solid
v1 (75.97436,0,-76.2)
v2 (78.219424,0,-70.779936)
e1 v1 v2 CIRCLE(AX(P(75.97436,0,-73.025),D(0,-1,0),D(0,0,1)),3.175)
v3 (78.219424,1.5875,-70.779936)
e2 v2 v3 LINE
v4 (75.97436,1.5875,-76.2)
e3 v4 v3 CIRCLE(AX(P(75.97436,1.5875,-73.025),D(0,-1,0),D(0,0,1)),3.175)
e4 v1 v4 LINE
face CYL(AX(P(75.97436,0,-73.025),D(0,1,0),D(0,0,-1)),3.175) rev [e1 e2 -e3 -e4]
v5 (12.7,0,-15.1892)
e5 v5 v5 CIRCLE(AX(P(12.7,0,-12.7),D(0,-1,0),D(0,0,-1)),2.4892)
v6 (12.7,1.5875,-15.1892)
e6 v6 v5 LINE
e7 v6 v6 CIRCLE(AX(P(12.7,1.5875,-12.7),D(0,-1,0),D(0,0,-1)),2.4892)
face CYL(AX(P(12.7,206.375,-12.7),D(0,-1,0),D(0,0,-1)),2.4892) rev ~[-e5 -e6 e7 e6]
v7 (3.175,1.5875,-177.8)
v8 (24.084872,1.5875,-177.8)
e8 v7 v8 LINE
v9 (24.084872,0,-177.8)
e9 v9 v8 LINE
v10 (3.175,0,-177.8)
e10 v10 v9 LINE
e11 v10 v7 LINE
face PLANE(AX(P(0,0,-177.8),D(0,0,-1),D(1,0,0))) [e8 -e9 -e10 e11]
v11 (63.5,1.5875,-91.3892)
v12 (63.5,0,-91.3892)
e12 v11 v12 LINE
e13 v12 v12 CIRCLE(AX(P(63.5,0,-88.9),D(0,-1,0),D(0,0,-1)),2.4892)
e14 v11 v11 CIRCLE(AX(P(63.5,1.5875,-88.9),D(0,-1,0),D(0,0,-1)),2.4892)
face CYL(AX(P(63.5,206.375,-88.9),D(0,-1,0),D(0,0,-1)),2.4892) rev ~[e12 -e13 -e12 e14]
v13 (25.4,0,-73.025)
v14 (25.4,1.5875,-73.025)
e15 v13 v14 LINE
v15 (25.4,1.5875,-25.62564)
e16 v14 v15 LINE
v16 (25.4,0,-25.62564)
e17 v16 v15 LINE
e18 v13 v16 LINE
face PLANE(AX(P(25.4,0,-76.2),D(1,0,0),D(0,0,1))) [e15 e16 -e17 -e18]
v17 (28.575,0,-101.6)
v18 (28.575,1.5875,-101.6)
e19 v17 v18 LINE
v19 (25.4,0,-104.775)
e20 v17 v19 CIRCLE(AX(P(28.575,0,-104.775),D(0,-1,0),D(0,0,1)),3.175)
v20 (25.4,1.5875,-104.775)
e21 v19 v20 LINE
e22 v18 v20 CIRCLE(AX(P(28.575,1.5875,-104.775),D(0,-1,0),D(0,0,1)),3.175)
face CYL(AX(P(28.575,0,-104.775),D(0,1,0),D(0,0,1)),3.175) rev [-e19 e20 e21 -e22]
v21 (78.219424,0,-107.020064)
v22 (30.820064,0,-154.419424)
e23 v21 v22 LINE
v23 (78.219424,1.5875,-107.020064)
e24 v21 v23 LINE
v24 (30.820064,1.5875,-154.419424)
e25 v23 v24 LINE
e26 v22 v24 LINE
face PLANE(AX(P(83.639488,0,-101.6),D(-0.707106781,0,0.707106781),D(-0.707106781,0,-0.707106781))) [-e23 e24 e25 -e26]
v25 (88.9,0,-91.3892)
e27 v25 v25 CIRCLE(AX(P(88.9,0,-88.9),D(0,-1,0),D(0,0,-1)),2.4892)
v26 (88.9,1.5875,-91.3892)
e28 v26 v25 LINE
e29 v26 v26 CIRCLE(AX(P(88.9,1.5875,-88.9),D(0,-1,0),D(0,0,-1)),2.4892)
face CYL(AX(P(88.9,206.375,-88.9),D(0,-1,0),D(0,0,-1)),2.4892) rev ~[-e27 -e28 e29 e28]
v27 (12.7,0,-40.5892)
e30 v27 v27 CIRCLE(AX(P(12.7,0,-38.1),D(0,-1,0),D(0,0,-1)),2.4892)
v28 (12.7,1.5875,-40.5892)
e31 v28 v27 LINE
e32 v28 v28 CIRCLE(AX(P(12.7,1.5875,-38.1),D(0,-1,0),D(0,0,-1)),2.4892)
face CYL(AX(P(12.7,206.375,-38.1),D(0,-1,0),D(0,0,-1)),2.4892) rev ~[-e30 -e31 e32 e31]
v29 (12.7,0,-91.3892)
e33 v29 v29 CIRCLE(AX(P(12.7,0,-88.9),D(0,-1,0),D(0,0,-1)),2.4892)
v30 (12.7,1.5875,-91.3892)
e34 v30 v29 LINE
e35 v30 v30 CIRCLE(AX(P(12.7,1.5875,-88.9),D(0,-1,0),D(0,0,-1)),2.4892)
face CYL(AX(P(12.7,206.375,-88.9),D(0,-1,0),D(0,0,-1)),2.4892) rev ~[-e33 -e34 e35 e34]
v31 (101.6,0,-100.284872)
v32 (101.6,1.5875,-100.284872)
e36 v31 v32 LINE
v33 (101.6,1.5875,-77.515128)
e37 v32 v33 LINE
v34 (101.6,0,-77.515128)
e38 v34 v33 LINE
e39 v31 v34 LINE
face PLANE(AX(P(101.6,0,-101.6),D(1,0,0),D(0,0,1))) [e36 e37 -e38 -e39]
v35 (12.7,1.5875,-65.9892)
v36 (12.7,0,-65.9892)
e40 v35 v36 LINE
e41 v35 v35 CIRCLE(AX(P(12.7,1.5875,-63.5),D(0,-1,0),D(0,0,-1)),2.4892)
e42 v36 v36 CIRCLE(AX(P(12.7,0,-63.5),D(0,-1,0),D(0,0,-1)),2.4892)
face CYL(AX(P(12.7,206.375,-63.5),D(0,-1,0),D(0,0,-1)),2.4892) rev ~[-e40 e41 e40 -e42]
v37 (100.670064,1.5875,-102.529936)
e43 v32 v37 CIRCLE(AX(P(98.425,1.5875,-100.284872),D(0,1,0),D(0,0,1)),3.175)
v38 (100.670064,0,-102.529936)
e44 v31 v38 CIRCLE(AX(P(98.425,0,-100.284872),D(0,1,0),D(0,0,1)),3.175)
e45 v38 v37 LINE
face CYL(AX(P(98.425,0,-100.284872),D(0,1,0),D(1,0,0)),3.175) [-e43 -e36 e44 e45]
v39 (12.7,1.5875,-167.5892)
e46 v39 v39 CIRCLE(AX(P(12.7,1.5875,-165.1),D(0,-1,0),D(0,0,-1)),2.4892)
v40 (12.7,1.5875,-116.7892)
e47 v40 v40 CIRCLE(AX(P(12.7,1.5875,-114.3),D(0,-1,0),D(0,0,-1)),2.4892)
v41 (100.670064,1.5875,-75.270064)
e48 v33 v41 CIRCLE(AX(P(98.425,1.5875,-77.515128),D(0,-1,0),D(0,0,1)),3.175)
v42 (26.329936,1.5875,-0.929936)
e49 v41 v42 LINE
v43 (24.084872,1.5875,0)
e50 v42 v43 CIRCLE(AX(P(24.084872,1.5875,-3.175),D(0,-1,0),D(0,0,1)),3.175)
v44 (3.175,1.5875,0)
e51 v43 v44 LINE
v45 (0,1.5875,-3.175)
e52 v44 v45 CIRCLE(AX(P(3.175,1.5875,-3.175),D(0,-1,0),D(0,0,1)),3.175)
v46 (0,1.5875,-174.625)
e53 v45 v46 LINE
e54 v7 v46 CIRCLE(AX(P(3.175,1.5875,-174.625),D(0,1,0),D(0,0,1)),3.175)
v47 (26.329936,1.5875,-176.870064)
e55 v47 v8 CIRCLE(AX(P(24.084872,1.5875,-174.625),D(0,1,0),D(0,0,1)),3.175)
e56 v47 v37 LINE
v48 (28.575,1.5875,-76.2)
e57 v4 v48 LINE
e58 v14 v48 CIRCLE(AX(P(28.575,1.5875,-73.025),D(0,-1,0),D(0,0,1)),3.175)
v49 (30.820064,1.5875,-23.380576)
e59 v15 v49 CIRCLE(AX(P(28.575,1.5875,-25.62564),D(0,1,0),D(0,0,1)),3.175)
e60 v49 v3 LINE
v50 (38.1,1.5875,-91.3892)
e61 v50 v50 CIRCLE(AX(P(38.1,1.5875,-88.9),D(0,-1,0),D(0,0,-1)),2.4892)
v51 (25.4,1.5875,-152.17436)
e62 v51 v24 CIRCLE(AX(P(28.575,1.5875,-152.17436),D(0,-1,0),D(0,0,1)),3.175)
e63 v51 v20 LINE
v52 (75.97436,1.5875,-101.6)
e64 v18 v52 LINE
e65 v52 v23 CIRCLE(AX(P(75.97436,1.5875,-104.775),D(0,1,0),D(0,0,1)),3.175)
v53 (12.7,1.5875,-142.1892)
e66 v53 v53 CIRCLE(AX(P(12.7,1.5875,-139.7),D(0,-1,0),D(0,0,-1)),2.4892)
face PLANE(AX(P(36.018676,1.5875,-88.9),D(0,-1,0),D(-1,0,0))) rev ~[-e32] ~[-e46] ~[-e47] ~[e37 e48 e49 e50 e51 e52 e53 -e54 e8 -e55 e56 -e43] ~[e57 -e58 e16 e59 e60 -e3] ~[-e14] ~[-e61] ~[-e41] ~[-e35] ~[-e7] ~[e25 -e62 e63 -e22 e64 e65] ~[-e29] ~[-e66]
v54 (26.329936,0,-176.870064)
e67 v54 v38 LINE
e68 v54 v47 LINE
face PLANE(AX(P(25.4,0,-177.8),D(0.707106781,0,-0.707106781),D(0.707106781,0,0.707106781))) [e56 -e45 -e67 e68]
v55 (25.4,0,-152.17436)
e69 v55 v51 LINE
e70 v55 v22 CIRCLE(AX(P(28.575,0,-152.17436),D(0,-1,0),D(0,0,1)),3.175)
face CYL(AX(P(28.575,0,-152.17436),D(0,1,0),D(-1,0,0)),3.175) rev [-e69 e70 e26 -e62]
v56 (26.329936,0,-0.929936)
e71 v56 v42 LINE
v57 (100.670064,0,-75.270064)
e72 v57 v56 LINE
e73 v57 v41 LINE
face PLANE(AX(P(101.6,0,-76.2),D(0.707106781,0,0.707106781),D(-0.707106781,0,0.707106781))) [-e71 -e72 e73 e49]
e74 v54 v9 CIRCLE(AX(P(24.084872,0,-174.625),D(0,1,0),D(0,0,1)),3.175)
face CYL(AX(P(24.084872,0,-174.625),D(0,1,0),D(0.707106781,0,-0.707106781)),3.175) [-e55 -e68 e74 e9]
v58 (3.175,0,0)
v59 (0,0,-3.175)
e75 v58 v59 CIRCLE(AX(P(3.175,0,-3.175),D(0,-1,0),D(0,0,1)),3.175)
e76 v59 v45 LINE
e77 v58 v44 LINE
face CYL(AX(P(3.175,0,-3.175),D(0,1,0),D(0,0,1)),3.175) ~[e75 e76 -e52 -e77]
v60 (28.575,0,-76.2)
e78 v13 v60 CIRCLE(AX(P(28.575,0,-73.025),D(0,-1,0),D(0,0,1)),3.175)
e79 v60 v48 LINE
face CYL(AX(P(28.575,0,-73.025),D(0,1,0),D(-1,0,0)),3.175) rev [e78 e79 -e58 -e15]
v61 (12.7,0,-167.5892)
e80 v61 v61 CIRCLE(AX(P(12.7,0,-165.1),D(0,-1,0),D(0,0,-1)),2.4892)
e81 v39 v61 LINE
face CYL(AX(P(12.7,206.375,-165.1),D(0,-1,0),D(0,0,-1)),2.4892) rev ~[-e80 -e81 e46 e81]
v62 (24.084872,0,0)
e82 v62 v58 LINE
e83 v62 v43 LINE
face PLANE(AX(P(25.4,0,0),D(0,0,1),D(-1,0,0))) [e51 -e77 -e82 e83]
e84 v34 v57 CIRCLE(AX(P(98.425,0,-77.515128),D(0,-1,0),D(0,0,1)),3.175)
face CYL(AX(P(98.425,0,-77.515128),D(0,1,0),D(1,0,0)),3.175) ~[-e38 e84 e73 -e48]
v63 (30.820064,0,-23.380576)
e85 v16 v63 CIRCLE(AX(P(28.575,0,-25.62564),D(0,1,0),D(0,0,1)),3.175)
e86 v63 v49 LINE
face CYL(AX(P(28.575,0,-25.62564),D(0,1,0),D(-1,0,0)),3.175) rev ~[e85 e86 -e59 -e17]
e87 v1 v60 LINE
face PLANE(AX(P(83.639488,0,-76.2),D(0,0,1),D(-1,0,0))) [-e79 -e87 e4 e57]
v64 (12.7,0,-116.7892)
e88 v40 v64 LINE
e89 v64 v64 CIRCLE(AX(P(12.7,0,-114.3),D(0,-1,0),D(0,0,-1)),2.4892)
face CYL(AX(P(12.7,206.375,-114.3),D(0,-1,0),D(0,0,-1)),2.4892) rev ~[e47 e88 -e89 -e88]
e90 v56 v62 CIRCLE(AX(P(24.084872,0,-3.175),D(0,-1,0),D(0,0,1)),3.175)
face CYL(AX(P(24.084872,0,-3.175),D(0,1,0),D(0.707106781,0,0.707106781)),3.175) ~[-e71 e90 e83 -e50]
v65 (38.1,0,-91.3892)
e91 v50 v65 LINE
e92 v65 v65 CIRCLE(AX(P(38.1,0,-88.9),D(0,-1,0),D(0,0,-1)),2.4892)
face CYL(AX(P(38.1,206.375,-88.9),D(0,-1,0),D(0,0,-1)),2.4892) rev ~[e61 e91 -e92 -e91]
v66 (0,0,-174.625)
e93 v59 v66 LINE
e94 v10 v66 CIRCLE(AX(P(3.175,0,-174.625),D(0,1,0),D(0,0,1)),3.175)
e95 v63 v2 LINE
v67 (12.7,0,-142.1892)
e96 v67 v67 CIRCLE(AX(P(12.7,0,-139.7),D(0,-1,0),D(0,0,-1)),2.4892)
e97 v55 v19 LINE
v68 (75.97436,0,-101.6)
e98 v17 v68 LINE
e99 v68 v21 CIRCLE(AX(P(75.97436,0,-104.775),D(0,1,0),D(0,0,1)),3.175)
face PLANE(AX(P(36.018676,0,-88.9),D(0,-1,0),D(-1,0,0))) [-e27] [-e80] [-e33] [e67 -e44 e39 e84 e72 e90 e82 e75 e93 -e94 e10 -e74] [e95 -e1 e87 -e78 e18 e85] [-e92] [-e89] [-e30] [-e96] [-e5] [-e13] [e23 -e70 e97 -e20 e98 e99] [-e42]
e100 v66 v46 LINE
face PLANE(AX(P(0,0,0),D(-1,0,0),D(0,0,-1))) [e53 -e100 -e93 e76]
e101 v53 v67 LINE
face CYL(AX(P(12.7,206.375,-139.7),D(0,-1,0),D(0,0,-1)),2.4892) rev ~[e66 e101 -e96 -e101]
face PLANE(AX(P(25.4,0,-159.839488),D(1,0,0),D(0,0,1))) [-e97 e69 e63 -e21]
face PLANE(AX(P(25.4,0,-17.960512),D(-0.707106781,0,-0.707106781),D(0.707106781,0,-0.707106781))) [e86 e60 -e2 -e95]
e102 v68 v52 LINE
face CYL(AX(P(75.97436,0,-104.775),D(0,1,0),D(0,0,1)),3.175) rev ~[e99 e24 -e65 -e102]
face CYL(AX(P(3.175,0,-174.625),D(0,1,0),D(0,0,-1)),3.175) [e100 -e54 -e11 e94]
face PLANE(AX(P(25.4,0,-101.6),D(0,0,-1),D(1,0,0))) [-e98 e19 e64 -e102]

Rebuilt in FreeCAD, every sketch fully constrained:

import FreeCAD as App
import Part
import Sketcher
Q = App.Units.Quantity


def edges_at(feature, points):
    """Names of the edges that pass closest to the given points."""
    edges = feature.Shape.Edges
    near = lambda p: min(range(len(edges)), key=lambda i: edges[i].distToShape(Part.Vertex(*p))[0])
    return sorted({f"Edge{near(p) + 1}" for p in points})

doc = App.newDocument("Part")
body = doc.addObject("PartDesign::Body", "Body")

sketch1 = doc.addObject("Sketcher::SketchObject", "Sketch")
body.addObject(sketch1)
sketch1.AttachmentSupport = (doc.XZ_Plane, [""])
sketch1.MapMode = "FlatFace"
sketch1.addGeometry([
    Part.LineSegment(App.Vector(102, -76, 0), App.Vector(102, -102, 0)),
    Part.LineSegment(App.Vector(102, -102, 0), App.Vector(25, -178, 0)),
    Part.LineSegment(App.Vector(25, -178, 0), App.Vector(0, -178, 0)),
    Part.LineSegment(App.Vector(0, -178, 0), App.Vector(0, 0, 0)),
    Part.LineSegment(App.Vector(0, 0, 0), App.Vector(25, 0, 0)),
    Part.LineSegment(App.Vector(25, 0, 0), App.Vector(102, -76, 0)),
    Part.LineSegment(App.Vector(25, -18, 0), App.Vector(25, -76, 0)),
    Part.LineSegment(App.Vector(25, -76, 0), App.Vector(84, -76, 0)),
    Part.LineSegment(App.Vector(84, -76, 0), App.Vector(25, -18, 0)),
    Part.LineSegment(App.Vector(84, -102, 0), App.Vector(25, -102, 0)),
    Part.LineSegment(App.Vector(25, -102, 0), App.Vector(25, -160, 0)),
    Part.LineSegment(App.Vector(25, -160, 0), App.Vector(84, -102, 0)),
], False)
sketch1.addConstraint([
    Sketcher.Constraint("Coincident", 0, 2, 1, 1),
    Sketcher.Constraint("Coincident", 1, 2, 2, 1),
    Sketcher.Constraint("Coincident", 2, 2, 3, 1),
    Sketcher.Constraint("Coincident", 3, 2, 4, 1),
    Sketcher.Constraint("Coincident", 4, 2, 5, 1),
    Sketcher.Constraint("Coincident", 5, 2, 0, 1),
    Sketcher.Constraint("Coincident", 6, 2, 7, 1),
    Sketcher.Constraint("Coincident", 7, 2, 8, 1),
    Sketcher.Constraint("Coincident", 8, 2, 6, 1),
    Sketcher.Constraint("Coincident", 9, 2, 10, 1),
    Sketcher.Constraint("Coincident", 10, 2, 11, 1),
    Sketcher.Constraint("Coincident", 11, 2, 9, 1),
    Sketcher.Constraint("Vertical", 0),
    Sketcher.Constraint("Horizontal", 2),
    Sketcher.Constraint("Vertical", 3),
    Sketcher.Constraint("Horizontal", 4),
    Sketcher.Constraint("Vertical", 6),
    Sketcher.Constraint("Horizontal", 7),
    Sketcher.Constraint("Horizontal", 9),
    Sketcher.Constraint("Vertical", 10),
    Sketcher.Constraint("Coincident", 3, 2, -1, 1),
    Sketcher.Constraint("Perpendicular", 1, 5),
    Sketcher.Constraint("Parallel", 5, 8),
    Sketcher.Constraint("Perpendicular", 8, 11),
    Sketcher.Constraint("Horizontal", 5, 2, 6, 2),
    Sketcher.Constraint("Horizontal", 0, 2, 9, 2),
    Sketcher.Constraint("Vertical", 1, 2, 4, 2),
    Sketcher.Constraint("Vertical", 4, 2, 6, 2),
    Sketcher.Constraint("Vertical", 8, 2, 9, 2),
    Sketcher.Constraint("Vertical", 7, 2, 11, 2),
    Sketcher.Constraint("Equal", 4, 0),
    Sketcher.Constraint("Equal", 9, 6),
    Sketcher.Constraint("DistanceX", 2, 2, 2, 1, Q("1 in")),
    Sketcher.Constraint("DistanceY", 3, 1, 3, 2, Q("7 in")),
    Sketcher.Constraint("DistanceX", 7, 1, 7, 2, Q("58.239488 mm")),
])
pad1 = doc.addObject("PartDesign::Pad", "Pad")
body.addObject(pad1)
pad1.Profile = sketch1
pad1.Length = Q("0.0625 in")
pad1.Reversed = True

sketch2 = doc.addObject("Sketcher::SketchObject", "Sketch001")
body.addObject(sketch2)
sketch2.AttachmentSupport = (doc.XZ_Plane, [""])
sketch2.MapMode = "FlatFace"
sketch2.AttachmentOffset = App.Placement(App.Vector(0, 0, -0.0625 * 25.4), App.Rotation())
sketch2.addGeometry(Part.Circle(App.Vector(12.7, -88.9, 0), App.Vector(0, 0, 1), 2.5), False)
sketch2.addConstraint([
    Sketcher.Constraint("Diameter", 0, Q("0.196 in")),
    Sketcher.Constraint("DistanceX", -1, 1, 0, 3, Q("0.5 in")),
    Sketcher.Constraint("DistanceY", 0, 3, -1, 1, Q("3.5 in")),
])
doc.recompute()
hole = doc.addObject("PartDesign::Hole", "Hole")
body.addObject(hole)
hole.Profile = sketch2
hole.ThreadType = "None"
hole.Diameter = Q("0.196 in")
hole.DepthType = "ThroughAll"
hole.Reversed = True
doc.recompute()

linearpattern = doc.addObject("PartDesign::LinearPattern", "LinearPattern")
body.addObject(linearpattern)
linearpattern.Originals = [hole]
linearpattern.Direction = (doc.Z_Axis, [""])
linearpattern.Mode = "offset"
linearpattern.Offset = Q("1 in")
linearpattern.Occurrences = 4
linearpattern.Reversed = True
body.Tip = linearpattern
doc.recompute()

linearpattern2 = doc.addObject("PartDesign::LinearPattern", "LinearPattern001")
body.addObject(linearpattern2)
linearpattern2.Originals = [hole]
linearpattern2.Direction = (doc.X_Axis, [""])
linearpattern2.Mode = "offset"
linearpattern2.Offset = Q("1 in")
linearpattern2.Occurrences = 4
body.Tip = linearpattern2
doc.recompute()

linearpattern3 = doc.addObject("PartDesign::LinearPattern", "LinearPattern002")
body.addObject(linearpattern3)
linearpattern3.Originals = [hole]
linearpattern3.Direction = (doc.Z_Axis, [""])
linearpattern3.Mode = "offset"
linearpattern3.Offset = Q("1 in")
linearpattern3.Occurrences = 4
body.Tip = linearpattern3
doc.recompute()

fillet = doc.addObject("PartDesign::Fillet", "Fillet")
body.addObject(fillet)
fillet.Base = (linearpattern3, edges_at(linearpattern3, [
    (101.6, 0.794, -76.2),
    (25.4, 0.794, 0),
    (0, 0.794, 0),
    (0, 0.794, -177.8),
    (25.4, 0.794, -177.8),
    (101.6, 0.794, -101.6),
    (25.4, 0.794, -159.839),
    (25.4, 0.794, -101.6),
    (83.639, 0.794, -101.6),
    (83.639, 0.794, -76.2),
    (25.4, 0.794, -76.2),
    (25.4, 0.794, -17.961),
]))
fillet.Radius = Q("0.125 in")

doc.recompute()
